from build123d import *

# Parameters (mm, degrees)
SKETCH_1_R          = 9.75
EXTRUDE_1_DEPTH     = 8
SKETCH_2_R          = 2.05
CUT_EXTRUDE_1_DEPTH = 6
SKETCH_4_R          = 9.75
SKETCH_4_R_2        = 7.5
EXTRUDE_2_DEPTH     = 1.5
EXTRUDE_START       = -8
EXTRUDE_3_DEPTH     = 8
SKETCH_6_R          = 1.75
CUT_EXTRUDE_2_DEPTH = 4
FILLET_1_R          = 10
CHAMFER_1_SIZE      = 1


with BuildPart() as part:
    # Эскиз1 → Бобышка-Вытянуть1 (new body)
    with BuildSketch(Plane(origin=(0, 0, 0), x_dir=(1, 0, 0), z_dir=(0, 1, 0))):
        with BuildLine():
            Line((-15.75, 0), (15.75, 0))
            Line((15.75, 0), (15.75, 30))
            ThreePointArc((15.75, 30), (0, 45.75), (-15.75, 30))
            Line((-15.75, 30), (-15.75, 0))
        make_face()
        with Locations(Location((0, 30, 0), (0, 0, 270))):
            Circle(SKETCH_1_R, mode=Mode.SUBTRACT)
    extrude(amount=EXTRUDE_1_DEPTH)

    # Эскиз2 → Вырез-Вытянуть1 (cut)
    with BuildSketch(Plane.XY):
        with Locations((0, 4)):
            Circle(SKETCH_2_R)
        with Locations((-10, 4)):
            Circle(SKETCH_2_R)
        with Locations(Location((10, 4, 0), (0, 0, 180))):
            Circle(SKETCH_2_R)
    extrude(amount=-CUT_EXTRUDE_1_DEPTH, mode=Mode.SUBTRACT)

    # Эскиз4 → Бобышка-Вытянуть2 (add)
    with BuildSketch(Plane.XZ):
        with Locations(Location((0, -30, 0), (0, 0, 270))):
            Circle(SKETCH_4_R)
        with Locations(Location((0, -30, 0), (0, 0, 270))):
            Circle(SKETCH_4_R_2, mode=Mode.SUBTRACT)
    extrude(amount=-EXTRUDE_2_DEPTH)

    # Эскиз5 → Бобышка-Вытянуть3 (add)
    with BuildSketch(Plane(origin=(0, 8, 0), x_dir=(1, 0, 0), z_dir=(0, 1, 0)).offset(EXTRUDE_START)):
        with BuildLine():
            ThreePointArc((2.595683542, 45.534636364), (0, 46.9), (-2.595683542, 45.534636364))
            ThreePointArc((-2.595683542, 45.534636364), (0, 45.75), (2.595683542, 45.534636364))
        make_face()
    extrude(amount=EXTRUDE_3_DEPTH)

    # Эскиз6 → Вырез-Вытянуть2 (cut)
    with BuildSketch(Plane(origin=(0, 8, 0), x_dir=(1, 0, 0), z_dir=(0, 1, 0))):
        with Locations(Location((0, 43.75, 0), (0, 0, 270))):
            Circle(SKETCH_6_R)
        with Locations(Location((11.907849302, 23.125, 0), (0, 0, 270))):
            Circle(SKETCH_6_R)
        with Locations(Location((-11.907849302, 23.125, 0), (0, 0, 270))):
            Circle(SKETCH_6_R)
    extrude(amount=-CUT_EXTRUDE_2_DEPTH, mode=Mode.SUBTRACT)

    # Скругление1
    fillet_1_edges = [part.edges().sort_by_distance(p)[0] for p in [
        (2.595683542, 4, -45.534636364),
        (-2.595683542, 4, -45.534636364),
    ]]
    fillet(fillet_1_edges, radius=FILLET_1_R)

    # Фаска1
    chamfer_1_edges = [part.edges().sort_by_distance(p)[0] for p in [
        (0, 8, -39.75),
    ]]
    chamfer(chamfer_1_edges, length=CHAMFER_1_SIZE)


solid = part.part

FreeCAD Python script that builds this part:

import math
import FreeCAD as App
import Part
import Sketcher
Q = App.Units.Quantity


def edges_at(feature, points):
    """Names of the edges that pass closest to the given points."""
    edges = feature.Shape.Edges
    near = lambda p: min(range(len(edges)), key=lambda i: edges[i].distToShape(Part.Vertex(*p))[0])
    return sorted({f"Edge{near(p) + 1}" for p in points})

doc = App.newDocument("Part")
body = doc.addObject("PartDesign::Body", "Body")

sketch1 = doc.addObject("Sketcher::SketchObject", "Sketch")
body.addObject(sketch1)
sketch1.AttachmentSupport = (doc.XZ_Plane, [""])
sketch1.MapMode = "FlatFace"
sketch1.addGeometry(Part.LineSegment(App.Vector(-15.75, 0, 0), App.Vector(15.75, 0, 0)), False)
sketch1.addGeometry(Part.LineSegment(App.Vector(15.75, 0, 0), App.Vector(15.75, -30, 0)), False)
sketch1.addGeometry(Part.ArcOfCircle(Part.Circle(App.Vector(0, -30, 0), App.Vector(0, 0, 1), 15.75), math.radians(180), math.radians(360)), False)
sketch1.addGeometry(Part.LineSegment(App.Vector(-15.75, -30, 0), App.Vector(-15.75, 0, 0)), False)
sketch1.addGeometry(Part.Circle(App.Vector(0, -30, 0), App.Vector(0, 0, 1), 9.75), False)
sketch1.addConstraint(Sketcher.Constraint("Coincident", 0, 2, 1, 1))
sketch1.addConstraint(Sketcher.Constraint("Tangent", 1, 2, 2, 2))
sketch1.addConstraint(Sketcher.Constraint("Tangent", 2, 1, 3, 1))
sketch1.addConstraint(Sketcher.Constraint("Coincident", 3, 2, 0, 1))
sketch1.addConstraint(Sketcher.Constraint("Horizontal", 0))
sketch1.addConstraint(Sketcher.Constraint("Vertical", 1))
sketch1.addConstraint(Sketcher.Constraint("Vertical", 3))
sketch1.addConstraint(Sketcher.Constraint("Coincident", 4, 3, 2, 3))
sketch1.addConstraint(Sketcher.Constraint("Symmetric", 0, 2, 3, 2, -1, 1))
sketch1.addConstraint(Sketcher.Constraint("Diameter", 4, Q("19.5 mm")))
sketch1.addConstraint(Sketcher.Constraint("DistanceY", 1, 2, 1, 1, Q("30 mm")))
sketch1.addConstraint(Sketcher.Constraint("Radius", 2, Q("15.75 mm")))
pad1 = doc.addObject("PartDesign::Pad", "Pad")
body.addObject(pad1)
pad1.Profile = sketch1
pad1.Length = 8
pad1.Reversed = True

sketch2 = doc.addObject("Sketcher::SketchObject", "Sketch001")
body.addObject(sketch2)
sketch2.AttachmentSupport = (doc.XY_Plane, [""])
sketch2.MapMode = "FlatFace"
sketch2.addGeometry(Part.Circle(App.Vector(0, 4, 0), App.Vector(0, 0, 1), 2.05), False)
sketch2.addGeometry(Part.Circle(App.Vector(-10, 4, 0), App.Vector(0, 0, 1), 2.05), False)
sketch2.addGeometry(Part.Circle(App.Vector(10, 4, 0), App.Vector(0, 0, 1), 2.05), False)
sketch2.addConstraint(Sketcher.Constraint("Equal", 0, 1))
sketch2.addConstraint(Sketcher.Constraint("Equal", 1, 2))
sketch2.addConstraint(Sketcher.Constraint("Symmetric", 1, 3, 2, 3, -2))
sketch2.addConstraint(Sketcher.Constraint("PointOnObject", 0, 3, -2))
sketch2.addConstraint(Sketcher.Constraint("Horizontal", 0, 3, 1, 3))
sketch2.addConstraint(Sketcher.Constraint("Diameter", 0, Q("4.1 mm")))
sketch2.addConstraint(Sketcher.Constraint("DistanceY", -1, 1, 0, 3, Q("4 mm")))
sketch2.addConstraint(Sketcher.Constraint("DistanceX", 1, 3, -1, 1, Q("10 mm")))
pocket1 = doc.addObject("PartDesign::Pocket", "Pocket")
body.addObject(pocket1)
pocket1.Profile = sketch2
pocket1.Length = 6

sketch3 = doc.addObject("Sketcher::SketchObject", "Sketch002")
body.addObject(sketch3)
sketch3.AttachmentSupport = (doc.XZ_Plane, [""])
sketch3.MapMode = "FlatFace"
sketch3.addGeometry(Part.Circle(App.Vector(0, -30, 0), App.Vector(0, 0, 1), 9.75), False)
sketch3.addGeometry(Part.Circle(App.Vector(0, -30, 0), App.Vector(0, 0, 1), 7.5), False)
sketch3.addConstraint(Sketcher.Constraint("Coincident", 1, 3, 0, 3))
sketch3.addConstraint(Sketcher.Constraint("PointOnObject", 0, 3, -2))
sketch3.addConstraint(Sketcher.Constraint("Diameter", 1, Q("15 mm")))
sketch3.addConstraint(Sketcher.Constraint("Diameter", 0, Q("19.5 mm")))
sketch3.addConstraint(Sketcher.Constraint("DistanceY", 0, 3, -1, 1, Q("30 mm")))
pad2 = doc.addObject("PartDesign::Pad", "Pad001")
body.addObject(pad2)
pad2.Profile = sketch3
pad2.Length = 1.5
pad2.Reversed = True

sketch4 = doc.addObject("Sketcher::SketchObject", "Sketch003")
body.addObject(sketch4)
sketch4.AttachmentSupport = (doc.XZ_Plane, [""])
sketch4.MapMode = "FlatFace"
sketch4.addGeometry(Part.ArcOfCircle(Part.Circle(App.Vector(0, -43.75, 0), App.Vector(0, 0, 1), 3.15), math.radians(-145.489919), math.radians(-34.510081)), False)
sketch4.addGeometry(Part.ArcOfCircle(Part.Circle(App.Vector(0, -30, 0), App.Vector(0, 0, 1), 15.75), math.radians(-99.485924), math.radians(-80.514076)), False)
sketch4.addConstraint(Sketcher.Constraint("Coincident", 0, 1, 1, 1))
sketch4.addConstraint(Sketcher.Constraint("Coincident", 1, 2, 0, 2))
sketch4.addConstraint(Sketcher.Constraint("Symmetric", 0, 1, 1, 2, -2))
sketch4.addConstraint(Sketcher.Constraint("Radius", 0, Q("3.15 mm")))
sketch4.addConstraint(Sketcher.Constraint("Radius", 1, Q("15.75 mm")))
sketch4.addConstraint(Sketcher.Constraint("DistanceY", 1, 3, -1, 1, Q("30 mm")))
sketch4.addConstraint(Sketcher.Constraint("DistanceY", 0, 3, -1, 1, Q("43.75 mm")))
pad3 = doc.addObject("PartDesign::Pad", "Pad002")
body.addObject(pad3)
pad3.Profile = sketch4
pad3.Length = 8
pad3.Reversed = True

sketch5 = doc.addObject("Sketcher::SketchObject", "Sketch004")
body.addObject(sketch5)
sketch5.AttachmentSupport = (doc.XZ_Plane, [""])
sketch5.MapMode = "FlatFace"
sketch5.AttachmentOffset = App.Placement(App.Vector(0, 0, -8), App.Rotation())
sketch5.addGeometry(Part.Circle(App.Vector(0, -43.75, 0), App.Vector(0, 0, 1), 1.75), False)
sketch5.addGeometry(Part.Circle(App.Vector(11.907849, -23.125, 0), App.Vector(0, 0, 1), 1.75), False)
sketch5.addGeometry(Part.Circle(App.Vector(-11.907849, -23.125, 0), App.Vector(0, 0, 1), 1.75), False)
sketch5.addConstraint(Sketcher.Constraint("Equal", 0, 1))
sketch5.addConstraint(Sketcher.Constraint("Equal", 1, 2))
sketch5.addConstraint(Sketcher.Constraint("Symmetric", 1, 3, 2, 3, -2))
sketch5.addConstraint(Sketcher.Constraint("PointOnObject", 0, 3, -2))
sketch5.addConstraint(Sketcher.Constraint("Diameter", 0, Q("3.5 mm")))
sketch5.addConstraint(Sketcher.Constraint("DistanceY", 0, 3, -1, 1, Q("43.75 mm")))
sketch5.addConstraint(Sketcher.Constraint("DistanceY", 1, 3, -1, 1, Q("23.125 mm")))
sketch5.addConstraint(Sketcher.Constraint("DistanceX", 2, 3, 1, 3, Q("23.815699 mm")))
pocket2 = doc.addObject("PartDesign::Pocket", "Pocket001")
body.addObject(pocket2)
pocket2.Profile = sketch5
pocket2.Length = 4
pocket2.Reversed = True
doc.recompute()

fillet = doc.addObject("PartDesign::Fillet", "Fillet")
body.addObject(fillet)
fillet.Base = (pocket2, edges_at(pocket2, [(2.596, 4, -45.535), (-2.596, 4, -45.535)]))
fillet.Radius = 10
doc.recompute()

chamfer = doc.addObject("PartDesign::Chamfer", "Chamfer")
body.addObject(chamfer)
chamfer.Base = (fillet, edges_at(fillet, [(0, 8, -39.75)]))
chamfer.Size = 1

doc.recompute()
